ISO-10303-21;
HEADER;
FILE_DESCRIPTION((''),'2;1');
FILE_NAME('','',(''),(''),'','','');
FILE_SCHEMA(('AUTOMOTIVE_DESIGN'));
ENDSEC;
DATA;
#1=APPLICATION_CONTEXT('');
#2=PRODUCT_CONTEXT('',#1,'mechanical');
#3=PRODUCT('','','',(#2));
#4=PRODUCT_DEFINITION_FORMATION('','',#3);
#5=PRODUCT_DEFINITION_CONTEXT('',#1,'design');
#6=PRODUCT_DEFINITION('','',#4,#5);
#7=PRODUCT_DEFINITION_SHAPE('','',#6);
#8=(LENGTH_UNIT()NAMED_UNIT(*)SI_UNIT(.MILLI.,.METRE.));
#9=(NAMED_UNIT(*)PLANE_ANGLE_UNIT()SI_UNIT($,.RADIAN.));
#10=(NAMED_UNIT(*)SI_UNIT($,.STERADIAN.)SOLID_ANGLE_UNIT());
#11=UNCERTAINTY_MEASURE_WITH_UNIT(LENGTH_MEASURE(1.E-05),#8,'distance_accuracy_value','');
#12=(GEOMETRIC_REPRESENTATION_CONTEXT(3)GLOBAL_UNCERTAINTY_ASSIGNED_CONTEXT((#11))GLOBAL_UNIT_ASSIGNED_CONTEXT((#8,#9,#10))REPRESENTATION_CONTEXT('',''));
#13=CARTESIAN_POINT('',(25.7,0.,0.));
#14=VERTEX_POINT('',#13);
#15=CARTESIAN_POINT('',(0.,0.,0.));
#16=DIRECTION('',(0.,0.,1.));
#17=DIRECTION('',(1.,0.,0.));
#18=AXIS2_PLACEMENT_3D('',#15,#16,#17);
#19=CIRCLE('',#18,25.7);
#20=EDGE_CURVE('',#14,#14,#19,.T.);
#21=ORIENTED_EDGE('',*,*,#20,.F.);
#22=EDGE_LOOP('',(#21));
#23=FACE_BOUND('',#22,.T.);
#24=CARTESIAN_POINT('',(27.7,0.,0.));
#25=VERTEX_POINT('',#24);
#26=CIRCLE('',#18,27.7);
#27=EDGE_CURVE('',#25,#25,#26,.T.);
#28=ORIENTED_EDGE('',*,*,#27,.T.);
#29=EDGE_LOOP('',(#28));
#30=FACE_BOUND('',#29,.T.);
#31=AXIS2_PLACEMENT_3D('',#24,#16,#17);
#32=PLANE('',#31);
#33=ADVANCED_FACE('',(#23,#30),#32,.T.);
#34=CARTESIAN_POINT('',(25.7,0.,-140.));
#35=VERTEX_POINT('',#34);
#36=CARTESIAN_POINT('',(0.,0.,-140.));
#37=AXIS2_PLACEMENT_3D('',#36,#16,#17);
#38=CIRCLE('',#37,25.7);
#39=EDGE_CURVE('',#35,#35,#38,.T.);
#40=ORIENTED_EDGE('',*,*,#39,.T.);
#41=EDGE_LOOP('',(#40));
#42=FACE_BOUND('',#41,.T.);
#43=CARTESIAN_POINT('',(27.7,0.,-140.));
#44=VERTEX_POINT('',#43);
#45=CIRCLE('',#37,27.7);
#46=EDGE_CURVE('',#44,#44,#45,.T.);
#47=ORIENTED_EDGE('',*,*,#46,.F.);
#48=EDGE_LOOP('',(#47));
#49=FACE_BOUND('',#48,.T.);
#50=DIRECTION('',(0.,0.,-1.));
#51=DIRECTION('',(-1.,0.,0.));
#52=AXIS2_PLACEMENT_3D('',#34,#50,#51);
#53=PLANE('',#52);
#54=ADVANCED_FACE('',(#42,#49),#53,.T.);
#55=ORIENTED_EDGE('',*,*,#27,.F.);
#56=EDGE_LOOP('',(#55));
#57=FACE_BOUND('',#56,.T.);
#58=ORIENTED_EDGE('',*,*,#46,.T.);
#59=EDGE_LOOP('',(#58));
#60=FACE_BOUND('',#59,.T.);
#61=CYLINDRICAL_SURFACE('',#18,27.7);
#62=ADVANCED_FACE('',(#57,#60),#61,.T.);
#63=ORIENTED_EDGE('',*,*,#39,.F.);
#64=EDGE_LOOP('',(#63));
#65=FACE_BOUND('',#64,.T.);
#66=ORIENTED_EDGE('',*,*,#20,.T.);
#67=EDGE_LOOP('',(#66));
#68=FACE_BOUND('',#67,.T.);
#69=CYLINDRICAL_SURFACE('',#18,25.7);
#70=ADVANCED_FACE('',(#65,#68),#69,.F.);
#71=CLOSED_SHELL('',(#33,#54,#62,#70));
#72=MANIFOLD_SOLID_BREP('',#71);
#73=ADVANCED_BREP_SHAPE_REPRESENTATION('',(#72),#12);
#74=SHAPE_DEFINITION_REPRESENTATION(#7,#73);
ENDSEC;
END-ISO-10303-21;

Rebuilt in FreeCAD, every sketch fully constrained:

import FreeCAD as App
import Part
import Sketcher

V = App.Vector
Q = App.Units.Quantity

doc = App.newDocument("Part")
params = doc.addObject("Spreadsheet::Sheet", "Params")
for row, (alias, value) in enumerate([
    ("sketch1_width", "2 mm"),
    ("sketch1_height", "140 mm"),
    ("revolution_angle", "360 deg"),
], start=1):
    params.set(f"A{row}", alias)
    params.set(f"B{row}", "=" + value)
    params.setAlias(f"B{row}", alias)

body = doc.addObject("PartDesign::Body", "Body")

# Sketch on XZ plane
sketch1 = body.newObject("Sketcher::SketchObject", "Sketch")
sketch1.AttachmentSupport = (doc.getObject("XZ_Plane"), [""])
sketch1.MapMode = "FlatFace"
sketch1.addGeometry([
    Part.LineSegment(V(25.7, -140, 0), V(25.7, 0, 0)),
    Part.LineSegment(V(25.7, 0, 0), V(27.7, 0, 0)),
    Part.LineSegment(V(27.7, 0, 0), V(27.7, -140, 0)),
    Part.LineSegment(V(27.7, -140, 0), V(25.7, -140, 0)),
], False)
sketch1.addConstraint([
    Sketcher.Constraint("Coincident", 0, 2, 1, 1),
    Sketcher.Constraint("Coincident", 1, 2, 2, 1),
    Sketcher.Constraint("Coincident", 2, 2, 3, 1),
    Sketcher.Constraint("Coincident", 3, 2, 0, 1),
    Sketcher.Constraint("Vertical", 0),
    Sketcher.Constraint("Horizontal", 1),
    Sketcher.Constraint("Vertical", 2),
    Sketcher.Constraint("Horizontal", 3),
    Sketcher.Constraint("PointOnObject", 0, 2, -1),
    Sketcher.Constraint("DistanceX", 1, 1, 1, 2, Q("2 mm")),
    Sketcher.Constraint("DistanceY", 0, 1, 0, 2, Q("140 mm")),
    Sketcher.Constraint("DistanceX", -1, 1, 0, 2, Q("25.7 mm")),
])
sketch1.setExpression("Constraints[9]", "Params.sketch1_width")
sketch1.setExpression("Constraints[10]", "Params.sketch1_height")
revolution = body.newObject("PartDesign::Revolution", "Revolution")
revolution.Profile = sketch1
revolution.ReferenceAxis = (sketch1, ["V_Axis"])
revolution.setExpression("Angle", "Params.revolution_angle")

doc.recompute()
